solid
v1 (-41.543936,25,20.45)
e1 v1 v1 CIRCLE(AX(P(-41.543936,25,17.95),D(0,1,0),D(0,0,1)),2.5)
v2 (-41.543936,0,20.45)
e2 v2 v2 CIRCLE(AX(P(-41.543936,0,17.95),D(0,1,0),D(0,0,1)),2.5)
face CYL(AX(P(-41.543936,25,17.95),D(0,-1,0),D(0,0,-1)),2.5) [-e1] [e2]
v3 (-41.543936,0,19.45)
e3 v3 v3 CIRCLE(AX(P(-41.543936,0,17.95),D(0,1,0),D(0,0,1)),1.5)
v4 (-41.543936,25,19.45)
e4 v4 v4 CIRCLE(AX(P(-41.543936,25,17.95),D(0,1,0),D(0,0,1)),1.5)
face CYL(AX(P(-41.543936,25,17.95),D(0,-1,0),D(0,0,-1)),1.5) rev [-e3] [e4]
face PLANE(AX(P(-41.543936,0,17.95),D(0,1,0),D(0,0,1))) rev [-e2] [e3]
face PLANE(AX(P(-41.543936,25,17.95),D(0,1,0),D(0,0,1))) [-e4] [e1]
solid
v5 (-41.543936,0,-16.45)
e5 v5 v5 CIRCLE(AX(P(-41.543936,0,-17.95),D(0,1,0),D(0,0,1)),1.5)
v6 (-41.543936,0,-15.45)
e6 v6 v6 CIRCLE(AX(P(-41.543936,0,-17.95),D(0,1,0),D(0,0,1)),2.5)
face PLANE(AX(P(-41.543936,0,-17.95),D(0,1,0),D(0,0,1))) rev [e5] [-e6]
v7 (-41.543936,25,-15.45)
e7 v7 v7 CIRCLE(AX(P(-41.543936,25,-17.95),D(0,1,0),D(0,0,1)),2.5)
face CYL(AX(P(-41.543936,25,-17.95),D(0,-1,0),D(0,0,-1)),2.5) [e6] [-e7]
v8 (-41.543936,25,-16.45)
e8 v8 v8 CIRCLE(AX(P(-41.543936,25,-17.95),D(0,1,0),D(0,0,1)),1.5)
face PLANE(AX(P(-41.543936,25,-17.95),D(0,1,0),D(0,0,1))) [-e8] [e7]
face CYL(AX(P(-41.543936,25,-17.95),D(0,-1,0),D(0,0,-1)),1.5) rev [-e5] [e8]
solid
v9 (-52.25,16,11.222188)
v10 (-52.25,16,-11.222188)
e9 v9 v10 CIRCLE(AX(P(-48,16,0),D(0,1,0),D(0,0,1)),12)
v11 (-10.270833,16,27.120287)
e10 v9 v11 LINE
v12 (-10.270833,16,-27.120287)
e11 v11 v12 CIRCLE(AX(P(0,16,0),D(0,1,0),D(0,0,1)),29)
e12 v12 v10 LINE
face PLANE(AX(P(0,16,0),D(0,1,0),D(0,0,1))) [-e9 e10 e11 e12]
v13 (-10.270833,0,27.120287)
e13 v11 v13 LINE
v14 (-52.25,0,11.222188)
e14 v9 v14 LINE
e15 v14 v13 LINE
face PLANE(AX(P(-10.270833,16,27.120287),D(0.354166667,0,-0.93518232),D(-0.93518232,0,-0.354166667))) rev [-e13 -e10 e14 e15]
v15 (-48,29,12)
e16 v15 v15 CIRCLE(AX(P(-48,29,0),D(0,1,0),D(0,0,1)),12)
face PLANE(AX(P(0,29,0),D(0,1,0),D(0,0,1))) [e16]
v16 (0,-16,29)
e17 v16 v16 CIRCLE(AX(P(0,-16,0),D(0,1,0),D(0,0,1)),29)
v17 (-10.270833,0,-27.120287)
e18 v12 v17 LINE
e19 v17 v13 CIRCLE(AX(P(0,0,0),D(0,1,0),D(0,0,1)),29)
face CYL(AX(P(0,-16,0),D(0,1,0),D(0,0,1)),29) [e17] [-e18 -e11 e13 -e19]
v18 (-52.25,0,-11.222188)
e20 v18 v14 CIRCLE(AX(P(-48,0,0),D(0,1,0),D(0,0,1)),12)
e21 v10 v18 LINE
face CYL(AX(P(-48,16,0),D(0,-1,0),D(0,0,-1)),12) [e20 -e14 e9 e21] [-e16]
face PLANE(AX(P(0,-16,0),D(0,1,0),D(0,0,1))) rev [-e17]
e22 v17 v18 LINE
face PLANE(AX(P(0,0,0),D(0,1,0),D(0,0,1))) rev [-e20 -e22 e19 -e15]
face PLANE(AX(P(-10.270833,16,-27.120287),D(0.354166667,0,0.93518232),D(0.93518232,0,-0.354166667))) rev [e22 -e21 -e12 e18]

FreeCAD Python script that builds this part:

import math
import FreeCAD as App
import Part
import Sketcher
Q = App.Units.Quantity

doc = App.newDocument("Part")
body = doc.addObject("PartDesign::Body", "Body")

sketch1 = body.newObject("Sketcher::SketchObject", "Sketch")
sketch1.AttachmentSupport = (doc.getObject("XZ_Plane"), [""])
sketch1.MapMode = "FlatFace"
sketch1.addGeometry(Part.Circle(App.Vector(0, 0, 0), App.Vector(0, 0, 1), 29), False)
sketch1.addConstraint(Sketcher.Constraint("Coincident", 0, 3, -1, 1))
sketch1.addConstraint(Sketcher.Constraint("Diameter", 0, Q("58 mm")))
pad1 = body.newObject("PartDesign::Pad", "Pad")
pad1.Profile = sketch1
pad1.Length = 16

sketch2 = body.newObject("Sketcher::SketchObject", "Sketch001")
sketch2.AttachmentSupport = (doc.getObject("XZ_Plane"), [""])
sketch2.MapMode = "FlatFace"
sketch2.AttachmentOffset = App.Placement(App.Vector(0, 0, -16), App.Rotation())
sketch2.addGeometry(Part.LineSegment(App.Vector(-10, -27, 0), App.Vector(-52, -11, 0)), False)
sketch2.addGeometry(Part.ArcOfCircle(Part.Circle(App.Vector(-48, 0, 0), App.Vector(0, 0, 1), 12), math.radians(111), math.radians(249)), False)
sketch2.addGeometry(Part.LineSegment(App.Vector(-52, 11, 0), App.Vector(-10, 27, 0)), False)
sketch2.addGeometry(Part.ArcOfCircle(Part.Circle(App.Vector(0, 0, 0), App.Vector(0, 0, 1), 29), math.radians(-111), math.radians(111)), False)
sketch2.addConstraint(Sketcher.Constraint("Tangent", 0, 2, 1, 2))
sketch2.addConstraint(Sketcher.Constraint("Tangent", 1, 1, 2, 1))
sketch2.addConstraint(Sketcher.Constraint("Tangent", 2, 2, 3, 2))
sketch2.addConstraint(Sketcher.Constraint("Tangent", 3, 1, 0, 1))
sketch2.addConstraint(Sketcher.Constraint("Coincident", 3, 3, -1, 1))
sketch2.addConstraint(Sketcher.Constraint("PointOnObject", 1, 3, -1))
sketch2.addConstraint(Sketcher.Constraint("Radius", 1, Q("12 mm")))
sketch2.addConstraint(Sketcher.Constraint("Radius", 3, Q("29 mm")))
sketch2.addConstraint(Sketcher.Constraint("DistanceX", 1, 3, -1, 1, Q("48 mm")))
pad2 = body.newObject("PartDesign::Pad", "Pad001")
pad2.Profile = sketch2
pad2.Length = 16

sketch3 = body.newObject("Sketcher::SketchObject", "Sketch002")
sketch3.AttachmentSupport = (doc.getObject("XZ_Plane"), [""])
sketch3.MapMode = "FlatFace"
sketch3.AttachmentOffset = App.Placement(App.Vector(0, 0, -29), App.Rotation())
sketch3.addGeometry(Part.ArcOfCircle(Part.Circle(App.Vector(-48, 0, 0), App.Vector(0, 0, 1), 12), math.radians(-111), math.radians(0)), False)
sketch3.addGeometry(Part.ArcOfCircle(Part.Circle(App.Vector(-48, 0, 0), App.Vector(0, 0, 1), 12), math.radians(111), math.radians(249)), False)
sketch3.addGeometry(Part.ArcOfCircle(Part.Circle(App.Vector(-48, 0, 0), App.Vector(0, 0, 1), 12), math.radians(0), math.radians(111)), False)
sketch3.addConstraint(Sketcher.Constraint("Tangent", 0, 1, 1, 2))
sketch3.addConstraint(Sketcher.Constraint("Tangent", 1, 1, 2, 2))
sketch3.addConstraint(Sketcher.Constraint("Tangent", 2, 1, 0, 2))
sketch3.addConstraint(Sketcher.Constraint("Symmetric", 0, 1, 1, 1, -1))
sketch3.addConstraint(Sketcher.Constraint("PointOnObject", 2, 1, -1))
sketch3.addConstraint(Sketcher.Constraint("Radius", 0, Q("12 mm")))
sketch3.addConstraint(Sketcher.Constraint("DistanceX", 0, 3, -1, 1, Q("48 mm")))
sketch3.addConstraint(Sketcher.Constraint("DistanceX", 0, 1, -1, 1, Q("52.25 mm")))
pad3 = body.newObject("PartDesign::Pad", "Pad002")
pad3.Profile = sketch3
pad3.Length = 13
body2 = doc.addObject("PartDesign::Body", "Body001")

sketch4 = body2.newObject("Sketcher::SketchObject", "Sketch003")
sketch4.AttachmentSupport = (doc.getObject("XZ_Plane001"), [""])
sketch4.MapMode = "FlatFace"
sketch4.addGeometry(Part.Circle(App.Vector(-41.5, 17.9, 0), App.Vector(0, 0, 1), 2.5), False)
sketch4.addGeometry(Part.Circle(App.Vector(-41.5, 17.9, 0), App.Vector(0, 0, 1), 1.5), False)
sketch4.addConstraint(Sketcher.Constraint("Coincident", 1, 3, 0, 3))
sketch4.addConstraint(Sketcher.Constraint("Diameter", 0, Q("5 mm")))
sketch4.addConstraint(Sketcher.Constraint("Diameter", 1, Q("3 mm")))
sketch4.addConstraint(Sketcher.Constraint("DistanceY", -1, 1, 0, 3, Q("17.95 mm")))
sketch4.addConstraint(Sketcher.Constraint("DistanceX", 0, 3, -1, 1, Q("41.543936 mm")))
pad4 = body2.newObject("PartDesign::Pad", "Pad003")
pad4.Profile = sketch4
pad4.Length = 25
pad4.Reversed = True
body3 = doc.addObject("PartDesign::Body", "Body002")

sketch5 = body3.newObject("Sketcher::SketchObject", "Sketch004")
sketch5.AttachmentSupport = (doc.getObject("XZ_Plane002"), [""])
sketch5.MapMode = "FlatFace"
sketch5.addGeometry(Part.Circle(App.Vector(-41.5, -17.9, 0), App.Vector(0, 0, 1), 2.5), False)
sketch5.addGeometry(Part.Circle(App.Vector(-41.5, -17.9, 0), App.Vector(0, 0, 1), 1.5), False)
sketch5.addConstraint(Sketcher.Constraint("Coincident", 1, 3, 0, 3))
sketch5.addConstraint(Sketcher.Constraint("Diameter", 0, Q("5 mm")))
sketch5.addConstraint(Sketcher.Constraint("Diameter", 1, Q("3 mm")))
sketch5.addConstraint(Sketcher.Constraint("DistanceY", 0, 3, -1, 1, Q("17.95 mm")))
sketch5.addConstraint(Sketcher.Constraint("DistanceX", 0, 3, -1, 1, Q("41.543936 mm")))
pad5 = body3.newObject("PartDesign::Pad", "Pad004")
pad5.Profile = sketch5
pad5.Length = 25
pad5.Reversed = True

doc.recompute()
